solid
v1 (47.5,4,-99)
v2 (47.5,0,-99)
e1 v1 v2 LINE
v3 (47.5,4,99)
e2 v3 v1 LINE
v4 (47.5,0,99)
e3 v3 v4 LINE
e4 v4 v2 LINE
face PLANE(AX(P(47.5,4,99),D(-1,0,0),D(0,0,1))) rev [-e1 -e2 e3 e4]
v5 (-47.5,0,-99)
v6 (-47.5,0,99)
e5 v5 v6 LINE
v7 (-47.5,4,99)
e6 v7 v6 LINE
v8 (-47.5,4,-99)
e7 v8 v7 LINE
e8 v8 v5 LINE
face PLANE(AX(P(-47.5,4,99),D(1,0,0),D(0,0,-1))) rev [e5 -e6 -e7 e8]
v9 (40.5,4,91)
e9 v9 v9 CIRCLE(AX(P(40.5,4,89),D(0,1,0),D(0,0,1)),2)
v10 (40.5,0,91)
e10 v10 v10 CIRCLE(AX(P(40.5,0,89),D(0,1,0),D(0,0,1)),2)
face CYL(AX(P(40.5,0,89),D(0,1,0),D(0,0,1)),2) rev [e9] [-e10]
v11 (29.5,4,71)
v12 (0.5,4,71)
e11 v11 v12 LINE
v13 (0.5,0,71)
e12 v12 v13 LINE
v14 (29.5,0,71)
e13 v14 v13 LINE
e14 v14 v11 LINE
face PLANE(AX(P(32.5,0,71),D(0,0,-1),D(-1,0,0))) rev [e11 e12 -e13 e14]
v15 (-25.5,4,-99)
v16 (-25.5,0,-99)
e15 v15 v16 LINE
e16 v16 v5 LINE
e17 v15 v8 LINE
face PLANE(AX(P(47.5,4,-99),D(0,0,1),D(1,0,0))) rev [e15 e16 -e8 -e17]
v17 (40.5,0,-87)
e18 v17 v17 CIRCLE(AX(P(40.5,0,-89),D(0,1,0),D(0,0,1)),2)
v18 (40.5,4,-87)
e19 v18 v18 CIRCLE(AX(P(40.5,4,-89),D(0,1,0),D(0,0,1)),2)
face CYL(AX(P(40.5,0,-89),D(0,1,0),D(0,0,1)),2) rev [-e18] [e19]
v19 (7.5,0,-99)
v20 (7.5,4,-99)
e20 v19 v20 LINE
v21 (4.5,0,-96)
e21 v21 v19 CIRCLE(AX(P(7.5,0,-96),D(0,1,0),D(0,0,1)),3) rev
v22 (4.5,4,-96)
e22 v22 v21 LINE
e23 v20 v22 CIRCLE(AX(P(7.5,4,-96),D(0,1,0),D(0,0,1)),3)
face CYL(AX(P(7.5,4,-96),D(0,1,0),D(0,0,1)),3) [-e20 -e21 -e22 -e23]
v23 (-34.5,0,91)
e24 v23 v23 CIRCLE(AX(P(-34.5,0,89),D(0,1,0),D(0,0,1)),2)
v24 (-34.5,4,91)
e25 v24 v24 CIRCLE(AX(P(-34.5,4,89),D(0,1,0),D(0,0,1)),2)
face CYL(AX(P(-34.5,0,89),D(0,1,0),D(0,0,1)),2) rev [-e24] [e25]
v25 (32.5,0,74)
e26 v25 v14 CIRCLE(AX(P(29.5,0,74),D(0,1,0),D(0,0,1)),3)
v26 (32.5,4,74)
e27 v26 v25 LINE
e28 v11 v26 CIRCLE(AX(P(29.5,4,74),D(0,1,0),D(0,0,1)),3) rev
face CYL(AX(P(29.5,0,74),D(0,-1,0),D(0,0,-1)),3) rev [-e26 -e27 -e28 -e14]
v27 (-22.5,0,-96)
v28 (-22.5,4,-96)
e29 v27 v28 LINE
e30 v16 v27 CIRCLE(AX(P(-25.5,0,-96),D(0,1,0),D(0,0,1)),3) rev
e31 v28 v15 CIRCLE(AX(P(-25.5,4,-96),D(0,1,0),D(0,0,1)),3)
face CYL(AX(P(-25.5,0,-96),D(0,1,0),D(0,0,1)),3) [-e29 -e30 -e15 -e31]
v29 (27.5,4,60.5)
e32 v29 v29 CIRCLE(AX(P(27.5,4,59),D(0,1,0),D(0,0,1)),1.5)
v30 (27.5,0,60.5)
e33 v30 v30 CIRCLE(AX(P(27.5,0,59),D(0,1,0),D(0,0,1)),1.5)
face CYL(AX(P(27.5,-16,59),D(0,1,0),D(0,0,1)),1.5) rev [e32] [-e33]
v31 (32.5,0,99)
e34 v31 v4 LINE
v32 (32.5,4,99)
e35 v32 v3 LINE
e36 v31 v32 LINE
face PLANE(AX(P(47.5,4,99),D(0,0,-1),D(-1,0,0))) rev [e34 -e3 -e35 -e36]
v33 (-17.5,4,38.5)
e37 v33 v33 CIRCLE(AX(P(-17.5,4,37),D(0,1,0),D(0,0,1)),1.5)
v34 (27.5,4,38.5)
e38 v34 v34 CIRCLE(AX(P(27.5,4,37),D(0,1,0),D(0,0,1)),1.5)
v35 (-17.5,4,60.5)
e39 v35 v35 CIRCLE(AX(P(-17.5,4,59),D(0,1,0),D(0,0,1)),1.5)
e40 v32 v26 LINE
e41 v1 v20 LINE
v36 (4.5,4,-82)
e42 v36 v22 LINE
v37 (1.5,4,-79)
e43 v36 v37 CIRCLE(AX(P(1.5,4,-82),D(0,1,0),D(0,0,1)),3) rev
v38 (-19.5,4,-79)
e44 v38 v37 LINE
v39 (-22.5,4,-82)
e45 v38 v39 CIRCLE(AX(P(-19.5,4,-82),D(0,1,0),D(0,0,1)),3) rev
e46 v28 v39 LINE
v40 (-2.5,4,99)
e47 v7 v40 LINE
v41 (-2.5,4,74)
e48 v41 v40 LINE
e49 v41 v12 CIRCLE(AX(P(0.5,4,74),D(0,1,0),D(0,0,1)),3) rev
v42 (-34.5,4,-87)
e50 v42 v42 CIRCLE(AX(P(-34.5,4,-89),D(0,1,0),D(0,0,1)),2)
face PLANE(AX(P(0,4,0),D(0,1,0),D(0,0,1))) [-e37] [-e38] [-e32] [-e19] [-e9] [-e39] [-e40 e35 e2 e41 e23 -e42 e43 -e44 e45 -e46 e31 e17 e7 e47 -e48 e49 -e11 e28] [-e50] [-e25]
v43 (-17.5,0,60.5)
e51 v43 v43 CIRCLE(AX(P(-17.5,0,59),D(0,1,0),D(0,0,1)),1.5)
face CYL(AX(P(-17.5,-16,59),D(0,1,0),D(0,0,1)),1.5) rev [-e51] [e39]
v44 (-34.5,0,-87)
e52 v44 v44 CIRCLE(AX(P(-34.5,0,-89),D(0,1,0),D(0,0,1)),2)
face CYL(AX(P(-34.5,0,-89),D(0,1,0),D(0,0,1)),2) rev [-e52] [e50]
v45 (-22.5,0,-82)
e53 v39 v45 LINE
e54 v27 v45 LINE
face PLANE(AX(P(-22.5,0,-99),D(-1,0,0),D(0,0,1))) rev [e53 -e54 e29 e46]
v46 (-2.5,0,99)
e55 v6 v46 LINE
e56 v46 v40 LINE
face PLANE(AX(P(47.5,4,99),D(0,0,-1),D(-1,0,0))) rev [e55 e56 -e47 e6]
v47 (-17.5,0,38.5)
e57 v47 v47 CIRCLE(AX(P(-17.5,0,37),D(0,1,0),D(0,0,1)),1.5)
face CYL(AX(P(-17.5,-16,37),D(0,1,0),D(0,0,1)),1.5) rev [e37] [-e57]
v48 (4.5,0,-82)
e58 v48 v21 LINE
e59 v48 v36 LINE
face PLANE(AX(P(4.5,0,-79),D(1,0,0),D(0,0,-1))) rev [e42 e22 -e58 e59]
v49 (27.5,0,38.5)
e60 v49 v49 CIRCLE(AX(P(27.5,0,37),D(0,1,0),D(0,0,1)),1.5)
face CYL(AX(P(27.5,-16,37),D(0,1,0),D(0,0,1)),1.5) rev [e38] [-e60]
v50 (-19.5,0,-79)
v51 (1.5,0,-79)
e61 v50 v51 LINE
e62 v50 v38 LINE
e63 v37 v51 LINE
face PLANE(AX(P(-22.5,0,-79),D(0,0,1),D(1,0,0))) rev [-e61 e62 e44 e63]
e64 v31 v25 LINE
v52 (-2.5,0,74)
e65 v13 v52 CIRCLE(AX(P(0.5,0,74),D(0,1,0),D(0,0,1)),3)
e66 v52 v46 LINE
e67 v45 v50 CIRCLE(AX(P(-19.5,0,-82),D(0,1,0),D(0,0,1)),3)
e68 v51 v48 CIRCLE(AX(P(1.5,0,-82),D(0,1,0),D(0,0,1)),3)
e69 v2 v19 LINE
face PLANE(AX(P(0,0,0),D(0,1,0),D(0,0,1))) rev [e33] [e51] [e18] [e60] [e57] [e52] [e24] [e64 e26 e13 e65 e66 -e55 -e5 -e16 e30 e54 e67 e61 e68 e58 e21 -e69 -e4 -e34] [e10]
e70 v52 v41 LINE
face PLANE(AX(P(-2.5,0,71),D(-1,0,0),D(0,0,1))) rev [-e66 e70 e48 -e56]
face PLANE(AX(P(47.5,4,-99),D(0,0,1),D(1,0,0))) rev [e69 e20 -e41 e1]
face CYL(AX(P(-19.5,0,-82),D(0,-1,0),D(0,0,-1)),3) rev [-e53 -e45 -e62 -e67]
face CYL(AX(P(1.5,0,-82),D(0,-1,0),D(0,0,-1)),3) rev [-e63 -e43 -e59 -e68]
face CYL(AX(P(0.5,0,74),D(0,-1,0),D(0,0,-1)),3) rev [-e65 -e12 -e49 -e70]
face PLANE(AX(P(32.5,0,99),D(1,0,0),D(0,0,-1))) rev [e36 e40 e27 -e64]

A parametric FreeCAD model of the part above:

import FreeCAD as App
import Part
import Sketcher
from FreeCAD import Vector
Q = App.Units.Quantity


def edges_at(feature, points):
    """Names of the edges that pass closest to the given points."""
    edges = feature.Shape.Edges
    near = lambda p: min(range(len(edges)), key=lambda i: edges[i].distToShape(Part.Vertex(*p))[0])
    return sorted({f"Edge{near(p) + 1}" for p in points})

doc = App.newDocument("Part")
params = doc.addObject("Spreadsheet::Sheet", "Params")
for row, (alias, value) in enumerate([
    ("sketch1_width", "95 mm"),
    ("sketch1_height", "198 mm"),
    ("pad1_length", "4 mm"),
    ("sketch2_width", "35 mm"),
    ("sketch2_height", "28 mm"),
    ("pocket1_length", "4 mm"),
    ("sketch3_diameter", "4 mm"),
    ("sketch4_diameter", "4 mm"),
    ("sketch5_width", "27 mm"),
    ("sketch5_height", "20 mm"),
    ("sketch6_diameter", "3 mm"),
    ("pocket5_length", "20 mm"),
    ("fillet_radius", "3 mm"),
    ("fillet2_radius", "3 mm"),
], start=1):
    params.set(f"A{row}", alias)
    params.set(f"B{row}", "=" + value)
    params.setAlias(f"B{row}", alias)

body = doc.addObject("PartDesign::Body", "Body")

# Sketch on XZ plane
sketch1 = body.newObject("Sketcher::SketchObject", "Sketch")
sketch1.AttachmentSupport = (doc.getObject("XZ_Plane"), [""])
sketch1.MapMode = "FlatFace"
sketch1.addGeometry([
    Part.LineSegment(Vector(-48, -99, 0), Vector(-48, 99, 0)),
    Part.LineSegment(Vector(-48, 99, 0), Vector(48, 99, 0)),
    Part.LineSegment(Vector(48, 99, 0), Vector(48, -99, 0)),
    Part.LineSegment(Vector(48, -99, 0), Vector(-48, -99, 0)),
], False)
sketch1.addConstraint([
    Sketcher.Constraint("Coincident", 0, 2, 1, 1),
    Sketcher.Constraint("Coincident", 1, 2, 2, 1),
    Sketcher.Constraint("Coincident", 2, 2, 3, 1),
    Sketcher.Constraint("Coincident", 3, 2, 0, 1),
    Sketcher.Constraint("Vertical", 0),
    Sketcher.Constraint("Horizontal", 1),
    Sketcher.Constraint("Vertical", 2),
    Sketcher.Constraint("Horizontal", 3),
    Sketcher.Constraint("Symmetric", 0, 2, 2, 2, -1, 1),
    Sketcher.Constraint("DistanceX", 1, 1, 1, 2, Q("95 mm")),
    Sketcher.Constraint("DistanceY", 0, 1, 0, 2, Q("198 mm")),
])
sketch1.setExpression("Constraints[9]", "Params.sketch1_width")
sketch1.setExpression("Constraints[10]", "Params.sketch1_height")
pad1 = body.newObject("PartDesign::Pad", "Pad")
pad1.Profile = sketch1
pad1.setExpression("Length", "Params.pad1_length")
pad1.Reversed = True

# Sketch on XZ plane
sketch2 = body.newObject("Sketcher::SketchObject", "Sketch001")
sketch2.AttachmentSupport = (doc.getObject("XZ_Plane"), [""])
sketch2.MapMode = "FlatFace"
sketch2.AttachmentOffset = App.Placement(Vector(0, 0, -4), App.Rotation())
sketch2.addGeometry([
    Part.LineSegment(Vector(-2, 71, 0), Vector(-2, 99, 0)),
    Part.LineSegment(Vector(-2, 99, 0), Vector(32, 99, 0)),
    Part.LineSegment(Vector(32, 99, 0), Vector(32, 71, 0)),
    Part.LineSegment(Vector(32, 71, 0), Vector(-2, 71, 0)),
], False)
sketch2.addConstraint([
    Sketcher.Constraint("Coincident", 0, 2, 1, 1),
    Sketcher.Constraint("Coincident", 1, 2, 2, 1),
    Sketcher.Constraint("Coincident", 2, 2, 3, 1),
    Sketcher.Constraint("Coincident", 3, 2, 0, 1),
    Sketcher.Constraint("Vertical", 0),
    Sketcher.Constraint("Horizontal", 1),
    Sketcher.Constraint("Vertical", 2),
    Sketcher.Constraint("Horizontal", 3),
    Sketcher.Constraint("DistanceX", 1, 1, 1, 2, Q("35 mm")),
    Sketcher.Constraint("DistanceY", 0, 1, 0, 2, Q("28 mm")),
    Sketcher.Constraint("DistanceY", -1, 1, 0, 2, Q("99 mm")),
    Sketcher.Constraint("DistanceX", 0, 2, -1, 1, Q("2.5 mm")),
])
sketch2.setExpression("Constraints[8]", "Params.sketch2_width")
sketch2.setExpression("Constraints[9]", "Params.sketch2_height")
pocket1 = body.newObject("PartDesign::Pocket", "Pocket")
pocket1.Profile = sketch2
pocket1.setExpression("Length", "Params.pocket1_length")
pocket1.Reversed = True

# Sketch on XZ plane
sketch3 = body.newObject("Sketcher::SketchObject", "Sketch002")
sketch3.AttachmentSupport = (doc.getObject("XZ_Plane"), [""])
sketch3.MapMode = "FlatFace"
sketch3.AttachmentOffset = App.Placement(Vector(0, 0, -4), App.Rotation())
sketch3.addGeometry(Part.Circle(Vector(40.5, 89, 0), Vector(0, 0, 1), 2), False)
sketch3.addConstraint([
    Sketcher.Constraint("Diameter", 0, Q("4 mm")),
    Sketcher.Constraint("DistanceY", -1, 1, 0, 3, Q("89 mm")),
    Sketcher.Constraint("DistanceX", -1, 1, 0, 3, Q("40.5 mm")),
])
sketch3.setExpression("Constraints[0]", "Params.sketch3_diameter")
pocket2 = body.newObject("PartDesign::Pocket", "Pocket001")
pocket2.Profile = sketch3
pocket2.Type = "ThroughAll"
pocket2.Reversed = True

# Sketch on XZ plane
sketch4 = body.newObject("Sketcher::SketchObject", "Sketch003")
sketch4.AttachmentSupport = (doc.getObject("XZ_Plane"), [""])
sketch4.MapMode = "FlatFace"
sketch4.AttachmentOffset = App.Placement(Vector(0, 0, -4), App.Rotation())
sketch4.addGeometry([
    Part.Circle(Vector(40.5, -89, 0), Vector(0, 0, 1), 2),
    Part.Circle(Vector(-34.5, -89, 0), Vector(0, 0, 1), 2),
    Part.Circle(Vector(-34.5, 89, 0), Vector(0, 0, 1), 2),
], False)
sketch4.addConstraint([
    Sketcher.Constraint("Equal", 0, 1),
    Sketcher.Constraint("Equal", 1, 2),
    Sketcher.Constraint("Symmetric", 1, 3, 2, 3, -1),
    Sketcher.Constraint("Horizontal", 0, 3, 1, 3),
    Sketcher.Constraint("Diameter", 0, Q("4 mm")),
    Sketcher.Constraint("DistanceY", 0, 3, -1, 1, Q("89 mm")),
    Sketcher.Constraint("DistanceX", 1, 3, 0, 3, Q("75 mm")),
    Sketcher.Constraint("DistanceX", -1, 1, 0, 3, Q("40.5 mm")),
])
sketch4.setExpression("Constraints[4]", "Params.sketch4_diameter")
pocket3 = body.newObject("PartDesign::Pocket", "Pocket002")
pocket3.Profile = sketch4
pocket3.Type = "ThroughAll"
pocket3.Reversed = True

# Sketch on XZ plane
sketch5 = body.newObject("Sketcher::SketchObject", "Sketch004")
sketch5.AttachmentSupport = (doc.getObject("XZ_Plane"), [""])
sketch5.MapMode = "FlatFace"
sketch5.AttachmentOffset = App.Placement(Vector(0, 0, -4), App.Rotation())
sketch5.addGeometry([
    Part.LineSegment(Vector(-22, -99, 0), Vector(-22, -79, 0)),
    Part.LineSegment(Vector(-22, -79, 0), Vector(4, -79, 0)),
    Part.LineSegment(Vector(4, -79, 0), Vector(4, -99, 0)),
    Part.LineSegment(Vector(4, -99, 0), Vector(-22, -99, 0)),
], False)
sketch5.addConstraint([
    Sketcher.Constraint("Coincident", 0, 2, 1, 1),
    Sketcher.Constraint("Coincident", 1, 2, 2, 1),
    Sketcher.Constraint("Coincident", 2, 2, 3, 1),
    Sketcher.Constraint("Coincident", 3, 2, 0, 1),
    Sketcher.Constraint("Vertical", 0),
    Sketcher.Constraint("Horizontal", 1),
    Sketcher.Constraint("Vertical", 2),
    Sketcher.Constraint("Horizontal", 3),
    Sketcher.Constraint("DistanceX", 1, 1, 1, 2, Q("27 mm")),
    Sketcher.Constraint("DistanceY", 0, 1, 0, 2, Q("20 mm")),
    Sketcher.Constraint("DistanceY", 0, 2, -1, 1, Q("79 mm")),
    Sketcher.Constraint("DistanceX", 0, 2, -1, 1, Q("22.5 mm")),
])
sketch5.setExpression("Constraints[8]", "Params.sketch5_width")
sketch5.setExpression("Constraints[9]", "Params.sketch5_height")
pocket4 = body.newObject("PartDesign::Pocket", "Pocket003")
pocket4.Profile = sketch5
pocket4.Type = "ThroughAll"
pocket4.Reversed = True

# Sketch on XZ plane
sketch6 = body.newObject("Sketcher::SketchObject", "Sketch005")
sketch6.AttachmentSupport = (doc.getObject("XZ_Plane"), [""])
sketch6.MapMode = "FlatFace"
sketch6.AttachmentOffset = App.Placement(Vector(0, 0, -4), App.Rotation())
sketch6.addGeometry([
    Part.Circle(Vector(-17.5, 59, 0), Vector(0, 0, 1), 1.5),
    Part.Circle(Vector(27.5, 59, 0), Vector(0, 0, 1), 1.5),
    Part.Circle(Vector(27.5, 37, 0), Vector(0, 0, 1), 1.5),
    Part.Circle(Vector(-17.5, 37, 0), Vector(0, 0, 1), 1.5),
], False)
sketch6.addConstraint([
    Sketcher.Constraint("Equal", 0, 1),
    Sketcher.Constraint("Equal", 1, 2),
    Sketcher.Constraint("Equal", 2, 3),
    Sketcher.Constraint("Horizontal", 0, 3, 1, 3),
    Sketcher.Constraint("Horizontal", 2, 3, 3, 3),
    Sketcher.Constraint("Vertical", 1, 3, 2, 3),
    Sketcher.Constraint("Vertical", 0, 3, 3, 3),
    Sketcher.Constraint("Diameter", 0, Q("3 mm")),
    Sketcher.Constraint("DistanceY", -1, 1, 0, 3, Q("59 mm")),
    Sketcher.Constraint("DistanceY", -1, 1, 2, 3, Q("37 mm")),
    Sketcher.Constraint("DistanceX", 0, 3, 1, 3, Q("45 mm")),
    Sketcher.Constraint("DistanceX", 0, 3, -1, 1, Q("17.5 mm")),
])
sketch6.setExpression("Constraints[7]", "Params.sketch6_diameter")
pocket5 = body.newObject("PartDesign::Pocket", "Pocket004")
pocket5.Profile = sketch6
pocket5.setExpression("Length", "Params.pocket5_length")
pocket5.Reversed = True
doc.recompute()

fillet = body.newObject("PartDesign::Fillet", "Fillet")
fillet.Base = (pocket5, edges_at(pocket5, [(-2.5, 2, 71), (32.5, 2, 71)]))
fillet.setExpression("Radius", "Params.fillet_radius")
doc.recompute()

fillet2 = body.newObject("PartDesign::Fillet", "Fillet001")
fillet2.Base = (fillet, edges_at(fillet, [
    (-22.5, 2, -99),
    (4.5, 2, -99),
    (4.5, 2, -79),
    (-22.5, 2, -79),
]))
fillet2.setExpression("Radius", "Params.fillet2_radius")

doc.recompute()
